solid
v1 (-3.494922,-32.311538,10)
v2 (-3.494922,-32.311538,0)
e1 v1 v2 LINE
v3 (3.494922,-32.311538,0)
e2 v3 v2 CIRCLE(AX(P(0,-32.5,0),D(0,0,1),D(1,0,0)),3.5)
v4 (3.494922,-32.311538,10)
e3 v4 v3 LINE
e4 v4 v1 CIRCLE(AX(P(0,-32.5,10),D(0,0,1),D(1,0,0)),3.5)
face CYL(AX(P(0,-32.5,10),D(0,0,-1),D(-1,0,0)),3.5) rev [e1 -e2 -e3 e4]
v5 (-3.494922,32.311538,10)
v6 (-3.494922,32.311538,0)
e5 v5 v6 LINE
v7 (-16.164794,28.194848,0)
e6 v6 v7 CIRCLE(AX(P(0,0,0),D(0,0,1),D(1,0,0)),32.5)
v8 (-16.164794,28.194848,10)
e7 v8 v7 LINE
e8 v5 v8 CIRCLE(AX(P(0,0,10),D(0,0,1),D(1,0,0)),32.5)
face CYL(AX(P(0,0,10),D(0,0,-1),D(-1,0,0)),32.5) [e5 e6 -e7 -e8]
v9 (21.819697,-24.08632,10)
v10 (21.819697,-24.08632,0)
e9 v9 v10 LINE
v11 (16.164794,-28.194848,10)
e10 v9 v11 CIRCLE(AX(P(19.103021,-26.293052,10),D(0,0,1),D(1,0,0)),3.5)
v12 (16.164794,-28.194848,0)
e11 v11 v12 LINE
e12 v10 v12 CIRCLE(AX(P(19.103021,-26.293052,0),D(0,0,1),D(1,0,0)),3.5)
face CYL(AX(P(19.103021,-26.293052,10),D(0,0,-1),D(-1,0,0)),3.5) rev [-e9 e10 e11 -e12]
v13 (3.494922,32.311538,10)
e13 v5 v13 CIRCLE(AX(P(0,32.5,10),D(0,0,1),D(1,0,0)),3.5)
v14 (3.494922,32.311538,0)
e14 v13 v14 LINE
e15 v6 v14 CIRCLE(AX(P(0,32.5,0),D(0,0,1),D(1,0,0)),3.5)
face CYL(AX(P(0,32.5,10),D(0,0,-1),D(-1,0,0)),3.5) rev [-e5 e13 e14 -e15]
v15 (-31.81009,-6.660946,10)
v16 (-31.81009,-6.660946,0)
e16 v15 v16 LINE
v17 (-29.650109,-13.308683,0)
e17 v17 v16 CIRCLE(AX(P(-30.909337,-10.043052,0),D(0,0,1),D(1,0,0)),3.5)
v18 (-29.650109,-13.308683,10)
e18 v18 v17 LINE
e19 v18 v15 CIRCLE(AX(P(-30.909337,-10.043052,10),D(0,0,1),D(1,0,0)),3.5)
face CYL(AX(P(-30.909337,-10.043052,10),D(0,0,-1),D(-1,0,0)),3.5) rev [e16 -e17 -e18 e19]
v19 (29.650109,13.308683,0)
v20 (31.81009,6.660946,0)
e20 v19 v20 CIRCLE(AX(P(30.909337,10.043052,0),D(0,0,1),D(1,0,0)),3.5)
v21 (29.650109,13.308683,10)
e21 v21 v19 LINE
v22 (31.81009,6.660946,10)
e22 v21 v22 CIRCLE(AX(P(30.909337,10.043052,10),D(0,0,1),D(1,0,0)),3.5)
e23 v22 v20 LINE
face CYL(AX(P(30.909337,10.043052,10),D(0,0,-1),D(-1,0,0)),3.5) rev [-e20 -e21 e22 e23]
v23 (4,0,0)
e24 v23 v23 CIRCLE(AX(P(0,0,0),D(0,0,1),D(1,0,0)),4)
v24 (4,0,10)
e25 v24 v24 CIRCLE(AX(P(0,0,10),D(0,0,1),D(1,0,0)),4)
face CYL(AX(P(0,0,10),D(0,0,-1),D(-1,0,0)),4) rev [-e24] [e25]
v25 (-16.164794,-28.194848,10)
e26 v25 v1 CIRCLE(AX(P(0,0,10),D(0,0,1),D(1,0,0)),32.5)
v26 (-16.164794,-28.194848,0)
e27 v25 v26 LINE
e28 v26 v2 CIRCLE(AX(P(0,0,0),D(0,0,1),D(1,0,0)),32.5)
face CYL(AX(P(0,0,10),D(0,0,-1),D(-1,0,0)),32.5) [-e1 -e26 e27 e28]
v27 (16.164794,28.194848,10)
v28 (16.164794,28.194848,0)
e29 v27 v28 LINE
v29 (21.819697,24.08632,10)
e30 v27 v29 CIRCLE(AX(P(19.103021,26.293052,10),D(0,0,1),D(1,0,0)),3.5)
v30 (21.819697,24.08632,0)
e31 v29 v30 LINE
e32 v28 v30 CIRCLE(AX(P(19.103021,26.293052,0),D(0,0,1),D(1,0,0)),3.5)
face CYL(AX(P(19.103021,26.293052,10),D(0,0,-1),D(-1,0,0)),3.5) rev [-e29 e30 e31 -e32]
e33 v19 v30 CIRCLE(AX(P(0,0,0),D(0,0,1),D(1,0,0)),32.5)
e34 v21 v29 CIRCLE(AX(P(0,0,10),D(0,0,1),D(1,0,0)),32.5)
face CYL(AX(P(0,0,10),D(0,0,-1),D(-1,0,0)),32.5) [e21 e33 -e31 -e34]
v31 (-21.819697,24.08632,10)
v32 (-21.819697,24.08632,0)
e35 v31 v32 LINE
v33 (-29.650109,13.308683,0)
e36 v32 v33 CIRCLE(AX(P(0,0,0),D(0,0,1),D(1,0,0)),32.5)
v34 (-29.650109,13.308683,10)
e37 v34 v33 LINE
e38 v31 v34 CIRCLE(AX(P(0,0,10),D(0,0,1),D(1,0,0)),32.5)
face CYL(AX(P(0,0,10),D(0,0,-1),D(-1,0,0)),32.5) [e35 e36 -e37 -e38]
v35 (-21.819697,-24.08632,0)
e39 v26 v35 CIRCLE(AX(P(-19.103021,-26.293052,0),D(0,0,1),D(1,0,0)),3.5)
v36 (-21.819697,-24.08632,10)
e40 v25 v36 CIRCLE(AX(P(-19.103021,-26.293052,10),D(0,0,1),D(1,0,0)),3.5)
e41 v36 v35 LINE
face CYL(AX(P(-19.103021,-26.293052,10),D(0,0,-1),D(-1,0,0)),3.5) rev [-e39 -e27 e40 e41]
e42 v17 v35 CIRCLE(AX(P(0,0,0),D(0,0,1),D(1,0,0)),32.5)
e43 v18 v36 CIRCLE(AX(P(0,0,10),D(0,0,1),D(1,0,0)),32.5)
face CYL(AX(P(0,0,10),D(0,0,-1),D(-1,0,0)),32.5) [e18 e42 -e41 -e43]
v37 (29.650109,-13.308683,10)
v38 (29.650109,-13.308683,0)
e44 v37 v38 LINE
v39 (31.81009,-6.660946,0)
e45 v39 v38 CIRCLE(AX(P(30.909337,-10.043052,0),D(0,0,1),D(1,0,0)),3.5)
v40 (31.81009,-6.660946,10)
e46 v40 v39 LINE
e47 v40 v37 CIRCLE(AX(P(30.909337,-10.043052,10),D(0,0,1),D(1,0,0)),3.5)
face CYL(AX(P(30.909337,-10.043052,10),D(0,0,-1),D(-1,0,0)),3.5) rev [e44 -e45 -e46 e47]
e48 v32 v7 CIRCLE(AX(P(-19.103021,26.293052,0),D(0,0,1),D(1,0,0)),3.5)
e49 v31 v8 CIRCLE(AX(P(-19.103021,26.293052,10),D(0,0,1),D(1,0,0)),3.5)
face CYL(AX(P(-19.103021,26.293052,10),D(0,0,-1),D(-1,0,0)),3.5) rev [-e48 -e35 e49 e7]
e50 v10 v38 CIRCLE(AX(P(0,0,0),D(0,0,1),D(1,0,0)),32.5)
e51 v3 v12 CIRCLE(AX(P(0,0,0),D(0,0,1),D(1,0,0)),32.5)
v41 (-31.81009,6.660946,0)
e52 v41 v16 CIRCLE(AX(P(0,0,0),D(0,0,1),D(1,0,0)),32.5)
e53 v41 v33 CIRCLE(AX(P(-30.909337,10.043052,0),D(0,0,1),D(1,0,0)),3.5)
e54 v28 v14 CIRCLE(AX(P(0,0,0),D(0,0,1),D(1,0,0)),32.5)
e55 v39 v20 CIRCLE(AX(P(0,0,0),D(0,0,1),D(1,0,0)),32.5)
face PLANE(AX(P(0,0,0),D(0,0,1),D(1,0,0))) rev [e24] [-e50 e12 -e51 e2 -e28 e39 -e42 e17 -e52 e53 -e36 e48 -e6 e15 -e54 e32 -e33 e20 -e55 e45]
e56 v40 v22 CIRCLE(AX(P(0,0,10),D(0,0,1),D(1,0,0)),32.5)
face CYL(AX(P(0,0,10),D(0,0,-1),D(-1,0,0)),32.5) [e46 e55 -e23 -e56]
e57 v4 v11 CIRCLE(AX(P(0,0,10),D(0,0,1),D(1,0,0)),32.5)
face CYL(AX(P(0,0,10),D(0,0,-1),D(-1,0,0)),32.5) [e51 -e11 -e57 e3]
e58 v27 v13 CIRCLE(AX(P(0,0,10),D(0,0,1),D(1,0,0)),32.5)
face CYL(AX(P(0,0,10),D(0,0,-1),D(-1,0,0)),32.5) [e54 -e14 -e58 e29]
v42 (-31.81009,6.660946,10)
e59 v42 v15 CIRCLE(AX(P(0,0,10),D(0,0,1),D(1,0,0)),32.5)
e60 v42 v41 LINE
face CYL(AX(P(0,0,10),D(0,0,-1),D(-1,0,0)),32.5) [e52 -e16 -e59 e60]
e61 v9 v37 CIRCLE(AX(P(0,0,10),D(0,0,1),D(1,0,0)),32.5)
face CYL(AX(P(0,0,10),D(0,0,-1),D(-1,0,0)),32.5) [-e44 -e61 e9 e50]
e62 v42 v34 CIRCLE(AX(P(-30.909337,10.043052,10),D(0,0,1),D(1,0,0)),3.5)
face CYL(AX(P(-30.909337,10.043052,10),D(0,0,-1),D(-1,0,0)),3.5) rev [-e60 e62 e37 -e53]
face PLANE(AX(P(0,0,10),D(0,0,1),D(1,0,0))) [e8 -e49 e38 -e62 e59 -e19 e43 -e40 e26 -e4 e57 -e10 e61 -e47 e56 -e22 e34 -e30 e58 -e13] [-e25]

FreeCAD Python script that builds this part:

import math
import FreeCAD as App
import Part
import Sketcher

doc = App.newDocument("Part")
body = doc.addObject("PartDesign::Body", "Body")

# Sketch on XY plane
sketch1 = body.newObject("Sketcher::SketchObject", "Sketch")
sketch1.AttachmentSupport = (doc.getObject("XY_Plane"), [""])
sketch1.MapMode = "FlatFace"
sketch1.addGeometry([
    Part.ArcOfCircle(Part.Circle(App.Vector(-30.9, -10, 0), App.Vector(0, 0, 1), 3.5), math.radians(-69), math.radians(105)),  # 0
    Part.ArcOfCircle(Part.Circle(App.Vector(0, 0, 0), App.Vector(0, 0, 1), 32.5), math.radians(-156), math.radians(-132)),  # 1
    Part.ArcOfCircle(Part.Circle(App.Vector(-19.1, -26.3, 0), App.Vector(0, 0, 1), 3.5), math.radians(-33), math.radians(141)),  # 2
    Part.ArcOfCircle(Part.Circle(App.Vector(0, 0, 0), App.Vector(0, 0, 1), 32.5), math.radians(-120), math.radians(-96)),  # 3
    Part.ArcOfCircle(Part.Circle(App.Vector(0, -32.5, 0), App.Vector(0, 0, 1), 3.5), math.radians(3), math.radians(177)),  # 4
    Part.ArcOfCircle(Part.Circle(App.Vector(0, 0, 0), App.Vector(0, 0, 1), 32.5), math.radians(-84), math.radians(-60)),  # 5
    Part.ArcOfCircle(Part.Circle(App.Vector(19.1, -26.3, 0), App.Vector(0, 0, 1), 3.5), math.radians(39), math.radians(213)),  # 6
    Part.ArcOfCircle(Part.Circle(App.Vector(0, 0, 0), App.Vector(0, 0, 1), 32.5), math.radians(-48), math.radians(-24)),  # 7
    Part.ArcOfCircle(Part.Circle(App.Vector(30.9, -10, 0), App.Vector(0, 0, 1), 3.5), math.radians(75), math.radians(249)),  # 8
    Part.ArcOfCircle(Part.Circle(App.Vector(0, 0, 0), App.Vector(0, 0, 1), 32.5), math.radians(-12), math.radians(12)),  # 9
    Part.ArcOfCircle(Part.Circle(App.Vector(30.9, 10, 0), App.Vector(0, 0, 1), 3.5), math.radians(111), math.radians(285)),  # 10
    Part.ArcOfCircle(Part.Circle(App.Vector(0, 0, 0), App.Vector(0, 0, 1), 32.5), math.radians(24), math.radians(48)),  # 11
    Part.ArcOfCircle(Part.Circle(App.Vector(19.1, 26.3, 0), App.Vector(0, 0, 1), 3.5), math.radians(147), math.radians(321)),  # 12
    Part.ArcOfCircle(Part.Circle(App.Vector(0, 0, 0), App.Vector(0, 0, 1), 32.5), math.radians(60), math.radians(84)),  # 13
    Part.ArcOfCircle(Part.Circle(App.Vector(0, 32.5, 0), App.Vector(0, 0, 1), 3.5), math.radians(-177), math.radians(-3)),  # 14
    Part.ArcOfCircle(Part.Circle(App.Vector(0, 0, 0), App.Vector(0, 0, 1), 32.5), math.radians(96), math.radians(120)),  # 15
    Part.ArcOfCircle(Part.Circle(App.Vector(-19.1, 26.3, 0), App.Vector(0, 0, 1), 3.5), math.radians(-141), math.radians(33)),  # 16
    Part.ArcOfCircle(Part.Circle(App.Vector(0, 0, 0), App.Vector(0, 0, 1), 32.5), math.radians(132), math.radians(156)),  # 17
    Part.ArcOfCircle(Part.Circle(App.Vector(-30.9, 10, 0), App.Vector(0, 0, 1), 3.5), math.radians(-105), math.radians(69)),  # 18
    Part.ArcOfCircle(Part.Circle(App.Vector(0, 0, 0), App.Vector(0, 0, 1), 32.5), math.radians(168), math.radians(192)),  # 19
    Part.Circle(App.Vector(0, 0, 0), App.Vector(0, 0, 1), 4),  # 20
], False)
sketch1.addConstraint([
    Sketcher.Constraint("Coincident", 0, 1, 1, 1),
    Sketcher.Constraint("Coincident", 1, 2, 2, 2),
    Sketcher.Constraint("Coincident", 2, 1, 3, 1),
    Sketcher.Constraint("Coincident", 3, 2, 4, 2),
    Sketcher.Constraint("Coincident", 4, 1, 5, 1),
    Sketcher.Constraint("Coincident", 5, 2, 6, 2),
    Sketcher.Constraint("Coincident", 6, 1, 7, 1),
    Sketcher.Constraint("Coincident", 7, 2, 8, 2),
    Sketcher.Constraint("Coincident", 8, 1, 9, 1),
    Sketcher.Constraint("Coincident", 9, 2, 10, 2),
    Sketcher.Constraint("Coincident", 10, 1, 11, 1),
    Sketcher.Constraint("Coincident", 11, 2, 12, 2),
    Sketcher.Constraint("Coincident", 12, 1, 13, 1),
    Sketcher.Constraint("Coincident", 13, 2, 14, 2),
    Sketcher.Constraint("Coincident", 14, 1, 15, 1),
    Sketcher.Constraint("Coincident", 15, 2, 16, 2),
    Sketcher.Constraint("Coincident", 16, 1, 17, 1),
    Sketcher.Constraint("Coincident", 17, 2, 18, 2),
    Sketcher.Constraint("Coincident", 18, 1, 19, 1),
    Sketcher.Constraint("Coincident", 19, 2, 0, 2),
    Sketcher.Constraint("Coincident", 1, 3, -1, 1),
    Sketcher.Constraint("Coincident", 3, 3, -1, 1),
    Sketcher.Constraint("Coincident", 5, 3, -1, 1),
    Sketcher.Constraint("Coincident", 7, 3, -1, 1),
    Sketcher.Constraint("Coincident", 9, 3, -1, 1),
    Sketcher.Constraint("Coincident", 11, 3, -1, 1),
    Sketcher.Constraint("Coincident", 13, 3, -1, 1),
    Sketcher.Constraint("Coincident", 15, 3, -1, 1),
    Sketcher.Constraint("Coincident", 17, 3, -1, 1),
    Sketcher.Constraint("Coincident", 19, 3, -1, 1),
    Sketcher.Constraint("Coincident", 20, 3, -1, 1),
    Sketcher.Constraint("Equal", 0, 2),
    Sketcher.Constraint("Equal", 1, 3),
    Sketcher.Constraint("Equal", 2, 4),
    Sketcher.Constraint("Equal", 3, 5),
    Sketcher.Constraint("Equal", 4, 6),
    Sketcher.Constraint("Equal", 5, 7),
    Sketcher.Constraint("Equal", 6, 8),
    Sketcher.Constraint("Equal", 7, 9),
    Sketcher.Constraint("Equal", 8, 10),
    Sketcher.Constraint("Equal", 9, 11),
    Sketcher.Constraint("Equal", 10, 12),
    Sketcher.Constraint("Equal", 11, 13),
    Sketcher.Constraint("Equal", 12, 14),
    Sketcher.Constraint("Equal", 13, 15),
    Sketcher.Constraint("Equal", 14, 16),
    Sketcher.Constraint("Equal", 15, 17),
    Sketcher.Constraint("Equal", 16, 18),
    Sketcher.Constraint("Equal", 17, 19),
    Sketcher.Constraint("Symmetric", 0, 3, 10, 3, -1, 1),
    Sketcher.Constraint("Symmetric", 2, 3, 12, 3, -1, 1),
    Sketcher.Constraint("Symmetric", 4, 3, 14, 3, -1, 1),
    Sketcher.Constraint("Symmetric", 6, 3, 16, 3, -1, 1),
    Sketcher.Constraint("Symmetric", 8, 3, 18, 3, -1, 1),
    Sketcher.Constraint("Symmetric", 2, 3, 6, 3, -2),
    Sketcher.Constraint("Symmetric", 0, 3, 8, 3, -2),
    Sketcher.Constraint("PointOnObject", 4, 3, -2),
    Sketcher.Constraint("Diameter", 20, 8.0),
    Sketcher.Constraint("Radius", 0, 3.5),
    Sketcher.Constraint("Radius", 1, 32.5),
    Sketcher.Constraint("DistanceY", 4, 3, -1, 1, 32.5),
    Sketcher.Constraint("DistanceY", 2, 3, 0, 3, 16.25),
    Sketcher.Constraint("DistanceY", 8, 1, 10, 3, 16.703998),
    Sketcher.Constraint("DistanceX", 2, 3, 3, 2, 15.608098),
    Sketcher.Constraint("DistanceX", 0, 1, -1, 1, 29.650109),
])
pad1 = body.newObject("PartDesign::Pad", "Pad")
pad1.Profile = sketch1
pad1.Length = 10

doc.recompute()
